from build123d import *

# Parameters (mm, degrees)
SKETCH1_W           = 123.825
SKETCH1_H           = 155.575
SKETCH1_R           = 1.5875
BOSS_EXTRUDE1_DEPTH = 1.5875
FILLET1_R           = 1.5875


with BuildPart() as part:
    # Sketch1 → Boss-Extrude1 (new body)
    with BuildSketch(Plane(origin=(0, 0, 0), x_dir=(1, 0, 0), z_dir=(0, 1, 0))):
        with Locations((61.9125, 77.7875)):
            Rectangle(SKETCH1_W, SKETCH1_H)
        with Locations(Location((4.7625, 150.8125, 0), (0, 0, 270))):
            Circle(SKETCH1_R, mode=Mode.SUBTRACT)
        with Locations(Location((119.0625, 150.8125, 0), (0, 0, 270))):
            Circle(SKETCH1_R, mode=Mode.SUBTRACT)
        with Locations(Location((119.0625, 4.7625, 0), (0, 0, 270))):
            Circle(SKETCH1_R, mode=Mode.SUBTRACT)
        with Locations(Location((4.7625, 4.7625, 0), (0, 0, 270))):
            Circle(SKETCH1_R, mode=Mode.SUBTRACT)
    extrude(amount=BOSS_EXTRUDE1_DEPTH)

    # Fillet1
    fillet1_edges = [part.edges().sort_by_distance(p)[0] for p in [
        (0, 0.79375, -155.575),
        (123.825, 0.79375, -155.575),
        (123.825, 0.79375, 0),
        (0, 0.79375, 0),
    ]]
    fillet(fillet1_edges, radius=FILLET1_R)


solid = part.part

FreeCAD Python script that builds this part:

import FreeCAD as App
import Part
import Sketcher
from FreeCAD import Vector
Q = App.Units.Quantity


def edges_at(feature, points):
    """Names of the edges that pass closest to the given points."""
    edges = feature.Shape.Edges
    near = lambda p: min(range(len(edges)), key=lambda i: edges[i].distToShape(Part.Vertex(*p))[0])
    return sorted({f"Edge{near(p) + 1}" for p in points})


def add_polygon(sketch, points):
    """Adds a closed chain of lines whose ends are joined by coincident constraints."""
    first, n = sketch.GeometryCount, len(points)
    for a, b in zip(points, points[1:] + points[:1]):
        sketch.addGeometry(Part.LineSegment(App.Vector(*a, 0), App.Vector(*b, 0)), False)
    for i in range(n):
        sketch.addConstraint(Sketcher.Constraint("Coincident", first + i, 2, first + (i + 1) % n, 1))

doc = App.newDocument("Part")
params = doc.addObject("Spreadsheet::Sheet", "Params")
for row, (alias, value) in enumerate([
    ("sketch1_diameter", "0.125 in"),
    ("sketch1_width", "4.875 in"),
    ("sketch1_height", "6.125 in"),
    ("pad1_length", "0.0625 in"),
    ("fillet_radius", "0.0625 in"),
], start=1):
    params.set(f"A{row}", alias)
    params.set(f"B{row}", "=" + value)
    params.setAlias(f"B{row}", alias)

body = doc.addObject("PartDesign::Body", "Body")

sketch1 = body.newObject("Sketcher::SketchObject", "Sketch")
sketch1.AttachmentSupport = (doc.getObject("XZ_Plane"), [""])
sketch1.MapMode = "FlatFace"
add_polygon(sketch1, [(0, -155.6), (0, 0), (123.8, 0), (123.8, -155.6)])
sketch1.addGeometry(Part.Circle(Vector(4.8, -4.8, 0), Vector(0, 0, 1), 1.6), False)
sketch1.addGeometry(Part.Circle(Vector(119.1, -4.8, 0), Vector(0, 0, 1), 1.6), False)
sketch1.addGeometry(Part.Circle(Vector(4.8, -150.8, 0), Vector(0, 0, 1), 1.6), False)
sketch1.addGeometry(Part.Circle(Vector(119.1, -150.8, 0), Vector(0, 0, 1), 1.6), False)
sketch1.addConstraint(Sketcher.Constraint("Vertical", 0))
sketch1.addConstraint(Sketcher.Constraint("Horizontal", 1))
sketch1.addConstraint(Sketcher.Constraint("Vertical", 2))
sketch1.addConstraint(Sketcher.Constraint("Horizontal", 3))
sketch1.addConstraint(Sketcher.Constraint("Coincident", 0, 2, -1, 1))
sketch1.addConstraint(Sketcher.Constraint("Equal", 4, 5))
sketch1.addConstraint(Sketcher.Constraint("Equal", 5, 6))
sketch1.addConstraint(Sketcher.Constraint("Equal", 6, 7))
sketch1.addConstraint(Sketcher.Constraint("Horizontal", 4, 3, 5, 3))
sketch1.addConstraint(Sketcher.Constraint("Horizontal", 6, 3, 7, 3))
sketch1.addConstraint(Sketcher.Constraint("Vertical", 4, 3, 6, 3))
sketch1.addConstraint(Sketcher.Constraint("Vertical", 5, 3, 7, 3))
sketch1.addConstraint(Sketcher.Constraint("Diameter", 4, Q("0.125 in")))
sketch1.addConstraint(Sketcher.Constraint("DistanceX", 4, 3, 5, 3, Q("4.5 in")))
sketch1.addConstraint(Sketcher.Constraint("DistanceX", 1, 1, 1, 2, Q("4.875 in")))
sketch1.addConstraint(Sketcher.Constraint("DistanceY", 0, 1, 0, 2, Q("6.125 in")))
sketch1.addConstraint(Sketcher.Constraint("DistanceY", 6, 3, 4, 3, Q("5.75 in")))
sketch1.addConstraint(Sketcher.Constraint("DistanceX", -1, 1, 4, 3, Q("0.1875 in")))
sketch1.addConstraint(Sketcher.Constraint("DistanceY", 4, 3, -1, 1, Q("0.1875 in")))
sketch1.setExpression("Constraints[16]", "Params.sketch1_diameter")
sketch1.setExpression("Constraints[18]", "Params.sketch1_width")
sketch1.setExpression("Constraints[19]", "Params.sketch1_height")
pad1 = body.newObject("PartDesign::Pad", "Pad")
pad1.Profile = sketch1
pad1.setExpression("Length", "Params.pad1_length")
pad1.Reversed = True
doc.recompute()

fillet = body.newObject("PartDesign::Fillet", "Fillet")
fillet.Base = (pad1, edges_at(pad1, [
    (0, 0.794, -155.575),
    (123.825, 0.794, -155.575),
    (123.825, 0.794, 0),
    (0, 0.794, 0),
]))
fillet.setExpression("Radius", "Params.fillet_radius")

doc.recompute()
